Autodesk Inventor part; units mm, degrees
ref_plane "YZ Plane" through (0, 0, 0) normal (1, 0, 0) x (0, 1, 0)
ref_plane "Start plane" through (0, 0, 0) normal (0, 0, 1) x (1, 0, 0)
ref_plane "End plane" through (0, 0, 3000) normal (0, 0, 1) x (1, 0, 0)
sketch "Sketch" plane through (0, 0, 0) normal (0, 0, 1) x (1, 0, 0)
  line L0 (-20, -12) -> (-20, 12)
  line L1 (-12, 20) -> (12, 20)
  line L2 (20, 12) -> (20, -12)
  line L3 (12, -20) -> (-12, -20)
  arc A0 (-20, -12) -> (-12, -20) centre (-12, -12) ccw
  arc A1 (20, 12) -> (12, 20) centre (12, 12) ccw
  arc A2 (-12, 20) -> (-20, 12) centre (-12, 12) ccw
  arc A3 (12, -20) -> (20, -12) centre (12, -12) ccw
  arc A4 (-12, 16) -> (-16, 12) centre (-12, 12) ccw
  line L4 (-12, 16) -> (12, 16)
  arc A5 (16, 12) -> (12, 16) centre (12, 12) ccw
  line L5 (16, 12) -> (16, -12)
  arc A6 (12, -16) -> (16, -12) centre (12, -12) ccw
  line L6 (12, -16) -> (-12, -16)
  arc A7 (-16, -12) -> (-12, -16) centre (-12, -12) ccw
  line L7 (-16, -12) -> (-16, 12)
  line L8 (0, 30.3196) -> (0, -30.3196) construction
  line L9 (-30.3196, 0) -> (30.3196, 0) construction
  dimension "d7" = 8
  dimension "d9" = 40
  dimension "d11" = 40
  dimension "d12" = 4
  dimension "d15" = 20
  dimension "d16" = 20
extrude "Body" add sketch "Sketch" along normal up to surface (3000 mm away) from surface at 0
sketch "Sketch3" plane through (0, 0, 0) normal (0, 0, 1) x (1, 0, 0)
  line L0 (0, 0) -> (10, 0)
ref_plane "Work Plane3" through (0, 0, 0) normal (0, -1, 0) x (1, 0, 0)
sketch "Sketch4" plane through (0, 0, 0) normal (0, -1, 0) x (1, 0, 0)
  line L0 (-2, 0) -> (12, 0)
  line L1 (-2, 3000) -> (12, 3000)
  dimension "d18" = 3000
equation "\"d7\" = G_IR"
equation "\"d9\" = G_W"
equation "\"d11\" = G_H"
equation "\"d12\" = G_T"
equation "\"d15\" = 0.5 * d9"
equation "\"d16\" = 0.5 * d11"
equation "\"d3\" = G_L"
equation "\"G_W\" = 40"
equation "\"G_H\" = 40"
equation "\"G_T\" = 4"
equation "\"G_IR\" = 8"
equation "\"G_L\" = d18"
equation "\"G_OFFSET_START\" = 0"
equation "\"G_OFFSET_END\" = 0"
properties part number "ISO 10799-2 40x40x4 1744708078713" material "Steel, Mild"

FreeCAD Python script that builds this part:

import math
import FreeCAD as App
import Part
import Sketcher
from FreeCAD import Vector

doc = App.newDocument("Part")
body = doc.addObject("PartDesign::Body", "Body")

sketch1 = body.newObject("Sketcher::SketchObject", "Sketch")
sketch1.AttachmentSupport = (doc.getObject("XY_Plane"), [""])
sketch1.MapMode = "FlatFace"
sketch1.addGeometry(Part.LineSegment(Vector(-20, 12, 0), Vector(-20, -12, 0)), False)
sketch1.addGeometry(Part.ArcOfCircle(Part.Circle(Vector(-12, -12, 0), Vector(0, 0, 1), 8), math.radians(180), math.radians(270)), False)
sketch1.addGeometry(Part.LineSegment(Vector(-12, -20, 0), Vector(12, -20, 0)), False)
sketch1.addGeometry(Part.ArcOfCircle(Part.Circle(Vector(12, -12, 0), Vector(0, 0, 1), 8), math.radians(-90), math.radians(0)), False)
sketch1.addGeometry(Part.LineSegment(Vector(20, -12, 0), Vector(20, 12, 0)), False)
sketch1.addGeometry(Part.ArcOfCircle(Part.Circle(Vector(12, 12, 0), Vector(0, 0, 1), 8), math.radians(0), math.radians(90)), False)
sketch1.addGeometry(Part.LineSegment(Vector(12, 20, 0), Vector(-12, 20, 0)), False)
sketch1.addGeometry(Part.ArcOfCircle(Part.Circle(Vector(-12, 12, 0), Vector(0, 0, 1), 8), math.radians(90), math.radians(180)), False)
sketch1.addGeometry(Part.ArcOfCircle(Part.Circle(Vector(-12, 12, 0), Vector(0, 0, 1), 4), math.radians(90), math.radians(180)), False)
sketch1.addGeometry(Part.LineSegment(Vector(-12, 16, 0), Vector(12, 16, 0)), False)
sketch1.addGeometry(Part.ArcOfCircle(Part.Circle(Vector(12, 12, 0), Vector(0, 0, 1), 4), math.radians(0), math.radians(90)), False)
sketch1.addGeometry(Part.LineSegment(Vector(16, 12, 0), Vector(16, -12, 0)), False)
sketch1.addGeometry(Part.ArcOfCircle(Part.Circle(Vector(12, -12, 0), Vector(0, 0, 1), 4), math.radians(-90), math.radians(0)), False)
sketch1.addGeometry(Part.LineSegment(Vector(12, -16, 0), Vector(-12, -16, 0)), False)
sketch1.addGeometry(Part.ArcOfCircle(Part.Circle(Vector(-12, -12, 0), Vector(0, 0, 1), 4), math.radians(180), math.radians(270)), False)
sketch1.addGeometry(Part.LineSegment(Vector(-16, -12, 0), Vector(-16, 12, 0)), False)
sketch1.addConstraint(Sketcher.Constraint("Tangent", 0, 2, 1, 1))
sketch1.addConstraint(Sketcher.Constraint("Tangent", 1, 2, 2, 1))
sketch1.addConstraint(Sketcher.Constraint("Tangent", 2, 2, 3, 1))
sketch1.addConstraint(Sketcher.Constraint("Tangent", 3, 2, 4, 1))
sketch1.addConstraint(Sketcher.Constraint("Tangent", 4, 2, 5, 1))
sketch1.addConstraint(Sketcher.Constraint("Tangent", 5, 2, 6, 1))
sketch1.addConstraint(Sketcher.Constraint("Tangent", 6, 2, 7, 1))
sketch1.addConstraint(Sketcher.Constraint("Tangent", 7, 2, 0, 1))
sketch1.addConstraint(Sketcher.Constraint("Tangent", 8, 1, 9, 1))
sketch1.addConstraint(Sketcher.Constraint("Tangent", 9, 2, 10, 2))
sketch1.addConstraint(Sketcher.Constraint("Tangent", 10, 1, 11, 1))
sketch1.addConstraint(Sketcher.Constraint("Tangent", 11, 2, 12, 2))
sketch1.addConstraint(Sketcher.Constraint("Tangent", 12, 1, 13, 1))
sketch1.addConstraint(Sketcher.Constraint("Tangent", 13, 2, 14, 2))
sketch1.addConstraint(Sketcher.Constraint("Tangent", 14, 1, 15, 1))
sketch1.addConstraint(Sketcher.Constraint("Tangent", 15, 2, 8, 2))
sketch1.addConstraint(Sketcher.Constraint("Vertical", 0))
sketch1.addConstraint(Sketcher.Constraint("Horizontal", 2))
sketch1.addConstraint(Sketcher.Constraint("Vertical", 4))
sketch1.addConstraint(Sketcher.Constraint("Horizontal", 6))
sketch1.addConstraint(Sketcher.Constraint("Horizontal", 9))
sketch1.addConstraint(Sketcher.Constraint("Vertical", 11))
sketch1.addConstraint(Sketcher.Constraint("Horizontal", 13))
sketch1.addConstraint(Sketcher.Constraint("Vertical", 15))
sketch1.addConstraint(Sketcher.Constraint("Coincident", 8, 3, 7, 3))
sketch1.addConstraint(Sketcher.Constraint("Coincident", 10, 3, 5, 3))
sketch1.addConstraint(Sketcher.Constraint("Coincident", 12, 3, 3, 3))
sketch1.addConstraint(Sketcher.Constraint("Equal", 1, 3))
sketch1.addConstraint(Sketcher.Constraint("Equal", 3, 5))
sketch1.addConstraint(Sketcher.Constraint("Equal", 5, 7))
sketch1.addConstraint(Sketcher.Constraint("Equal", 12, 14))
sketch1.addConstraint(Sketcher.Constraint("Symmetric", 1, 3, 5, 3, -1, 1))
sketch1.addConstraint(Sketcher.Constraint("Equal", 13, 0))
sketch1.addConstraint(Sketcher.Constraint("Radius", 1, 8.0))
sketch1.addConstraint(Sketcher.Constraint("Radius", 8, 4.0))
sketch1.addConstraint(Sketcher.Constraint("DistanceX", 0, 2, -1, 1, 20.0))
pad1 = body.newObject("PartDesign::Pad", "Pad")
pad1.Profile = sketch1
pad1.Length = 3000

doc.recompute()
